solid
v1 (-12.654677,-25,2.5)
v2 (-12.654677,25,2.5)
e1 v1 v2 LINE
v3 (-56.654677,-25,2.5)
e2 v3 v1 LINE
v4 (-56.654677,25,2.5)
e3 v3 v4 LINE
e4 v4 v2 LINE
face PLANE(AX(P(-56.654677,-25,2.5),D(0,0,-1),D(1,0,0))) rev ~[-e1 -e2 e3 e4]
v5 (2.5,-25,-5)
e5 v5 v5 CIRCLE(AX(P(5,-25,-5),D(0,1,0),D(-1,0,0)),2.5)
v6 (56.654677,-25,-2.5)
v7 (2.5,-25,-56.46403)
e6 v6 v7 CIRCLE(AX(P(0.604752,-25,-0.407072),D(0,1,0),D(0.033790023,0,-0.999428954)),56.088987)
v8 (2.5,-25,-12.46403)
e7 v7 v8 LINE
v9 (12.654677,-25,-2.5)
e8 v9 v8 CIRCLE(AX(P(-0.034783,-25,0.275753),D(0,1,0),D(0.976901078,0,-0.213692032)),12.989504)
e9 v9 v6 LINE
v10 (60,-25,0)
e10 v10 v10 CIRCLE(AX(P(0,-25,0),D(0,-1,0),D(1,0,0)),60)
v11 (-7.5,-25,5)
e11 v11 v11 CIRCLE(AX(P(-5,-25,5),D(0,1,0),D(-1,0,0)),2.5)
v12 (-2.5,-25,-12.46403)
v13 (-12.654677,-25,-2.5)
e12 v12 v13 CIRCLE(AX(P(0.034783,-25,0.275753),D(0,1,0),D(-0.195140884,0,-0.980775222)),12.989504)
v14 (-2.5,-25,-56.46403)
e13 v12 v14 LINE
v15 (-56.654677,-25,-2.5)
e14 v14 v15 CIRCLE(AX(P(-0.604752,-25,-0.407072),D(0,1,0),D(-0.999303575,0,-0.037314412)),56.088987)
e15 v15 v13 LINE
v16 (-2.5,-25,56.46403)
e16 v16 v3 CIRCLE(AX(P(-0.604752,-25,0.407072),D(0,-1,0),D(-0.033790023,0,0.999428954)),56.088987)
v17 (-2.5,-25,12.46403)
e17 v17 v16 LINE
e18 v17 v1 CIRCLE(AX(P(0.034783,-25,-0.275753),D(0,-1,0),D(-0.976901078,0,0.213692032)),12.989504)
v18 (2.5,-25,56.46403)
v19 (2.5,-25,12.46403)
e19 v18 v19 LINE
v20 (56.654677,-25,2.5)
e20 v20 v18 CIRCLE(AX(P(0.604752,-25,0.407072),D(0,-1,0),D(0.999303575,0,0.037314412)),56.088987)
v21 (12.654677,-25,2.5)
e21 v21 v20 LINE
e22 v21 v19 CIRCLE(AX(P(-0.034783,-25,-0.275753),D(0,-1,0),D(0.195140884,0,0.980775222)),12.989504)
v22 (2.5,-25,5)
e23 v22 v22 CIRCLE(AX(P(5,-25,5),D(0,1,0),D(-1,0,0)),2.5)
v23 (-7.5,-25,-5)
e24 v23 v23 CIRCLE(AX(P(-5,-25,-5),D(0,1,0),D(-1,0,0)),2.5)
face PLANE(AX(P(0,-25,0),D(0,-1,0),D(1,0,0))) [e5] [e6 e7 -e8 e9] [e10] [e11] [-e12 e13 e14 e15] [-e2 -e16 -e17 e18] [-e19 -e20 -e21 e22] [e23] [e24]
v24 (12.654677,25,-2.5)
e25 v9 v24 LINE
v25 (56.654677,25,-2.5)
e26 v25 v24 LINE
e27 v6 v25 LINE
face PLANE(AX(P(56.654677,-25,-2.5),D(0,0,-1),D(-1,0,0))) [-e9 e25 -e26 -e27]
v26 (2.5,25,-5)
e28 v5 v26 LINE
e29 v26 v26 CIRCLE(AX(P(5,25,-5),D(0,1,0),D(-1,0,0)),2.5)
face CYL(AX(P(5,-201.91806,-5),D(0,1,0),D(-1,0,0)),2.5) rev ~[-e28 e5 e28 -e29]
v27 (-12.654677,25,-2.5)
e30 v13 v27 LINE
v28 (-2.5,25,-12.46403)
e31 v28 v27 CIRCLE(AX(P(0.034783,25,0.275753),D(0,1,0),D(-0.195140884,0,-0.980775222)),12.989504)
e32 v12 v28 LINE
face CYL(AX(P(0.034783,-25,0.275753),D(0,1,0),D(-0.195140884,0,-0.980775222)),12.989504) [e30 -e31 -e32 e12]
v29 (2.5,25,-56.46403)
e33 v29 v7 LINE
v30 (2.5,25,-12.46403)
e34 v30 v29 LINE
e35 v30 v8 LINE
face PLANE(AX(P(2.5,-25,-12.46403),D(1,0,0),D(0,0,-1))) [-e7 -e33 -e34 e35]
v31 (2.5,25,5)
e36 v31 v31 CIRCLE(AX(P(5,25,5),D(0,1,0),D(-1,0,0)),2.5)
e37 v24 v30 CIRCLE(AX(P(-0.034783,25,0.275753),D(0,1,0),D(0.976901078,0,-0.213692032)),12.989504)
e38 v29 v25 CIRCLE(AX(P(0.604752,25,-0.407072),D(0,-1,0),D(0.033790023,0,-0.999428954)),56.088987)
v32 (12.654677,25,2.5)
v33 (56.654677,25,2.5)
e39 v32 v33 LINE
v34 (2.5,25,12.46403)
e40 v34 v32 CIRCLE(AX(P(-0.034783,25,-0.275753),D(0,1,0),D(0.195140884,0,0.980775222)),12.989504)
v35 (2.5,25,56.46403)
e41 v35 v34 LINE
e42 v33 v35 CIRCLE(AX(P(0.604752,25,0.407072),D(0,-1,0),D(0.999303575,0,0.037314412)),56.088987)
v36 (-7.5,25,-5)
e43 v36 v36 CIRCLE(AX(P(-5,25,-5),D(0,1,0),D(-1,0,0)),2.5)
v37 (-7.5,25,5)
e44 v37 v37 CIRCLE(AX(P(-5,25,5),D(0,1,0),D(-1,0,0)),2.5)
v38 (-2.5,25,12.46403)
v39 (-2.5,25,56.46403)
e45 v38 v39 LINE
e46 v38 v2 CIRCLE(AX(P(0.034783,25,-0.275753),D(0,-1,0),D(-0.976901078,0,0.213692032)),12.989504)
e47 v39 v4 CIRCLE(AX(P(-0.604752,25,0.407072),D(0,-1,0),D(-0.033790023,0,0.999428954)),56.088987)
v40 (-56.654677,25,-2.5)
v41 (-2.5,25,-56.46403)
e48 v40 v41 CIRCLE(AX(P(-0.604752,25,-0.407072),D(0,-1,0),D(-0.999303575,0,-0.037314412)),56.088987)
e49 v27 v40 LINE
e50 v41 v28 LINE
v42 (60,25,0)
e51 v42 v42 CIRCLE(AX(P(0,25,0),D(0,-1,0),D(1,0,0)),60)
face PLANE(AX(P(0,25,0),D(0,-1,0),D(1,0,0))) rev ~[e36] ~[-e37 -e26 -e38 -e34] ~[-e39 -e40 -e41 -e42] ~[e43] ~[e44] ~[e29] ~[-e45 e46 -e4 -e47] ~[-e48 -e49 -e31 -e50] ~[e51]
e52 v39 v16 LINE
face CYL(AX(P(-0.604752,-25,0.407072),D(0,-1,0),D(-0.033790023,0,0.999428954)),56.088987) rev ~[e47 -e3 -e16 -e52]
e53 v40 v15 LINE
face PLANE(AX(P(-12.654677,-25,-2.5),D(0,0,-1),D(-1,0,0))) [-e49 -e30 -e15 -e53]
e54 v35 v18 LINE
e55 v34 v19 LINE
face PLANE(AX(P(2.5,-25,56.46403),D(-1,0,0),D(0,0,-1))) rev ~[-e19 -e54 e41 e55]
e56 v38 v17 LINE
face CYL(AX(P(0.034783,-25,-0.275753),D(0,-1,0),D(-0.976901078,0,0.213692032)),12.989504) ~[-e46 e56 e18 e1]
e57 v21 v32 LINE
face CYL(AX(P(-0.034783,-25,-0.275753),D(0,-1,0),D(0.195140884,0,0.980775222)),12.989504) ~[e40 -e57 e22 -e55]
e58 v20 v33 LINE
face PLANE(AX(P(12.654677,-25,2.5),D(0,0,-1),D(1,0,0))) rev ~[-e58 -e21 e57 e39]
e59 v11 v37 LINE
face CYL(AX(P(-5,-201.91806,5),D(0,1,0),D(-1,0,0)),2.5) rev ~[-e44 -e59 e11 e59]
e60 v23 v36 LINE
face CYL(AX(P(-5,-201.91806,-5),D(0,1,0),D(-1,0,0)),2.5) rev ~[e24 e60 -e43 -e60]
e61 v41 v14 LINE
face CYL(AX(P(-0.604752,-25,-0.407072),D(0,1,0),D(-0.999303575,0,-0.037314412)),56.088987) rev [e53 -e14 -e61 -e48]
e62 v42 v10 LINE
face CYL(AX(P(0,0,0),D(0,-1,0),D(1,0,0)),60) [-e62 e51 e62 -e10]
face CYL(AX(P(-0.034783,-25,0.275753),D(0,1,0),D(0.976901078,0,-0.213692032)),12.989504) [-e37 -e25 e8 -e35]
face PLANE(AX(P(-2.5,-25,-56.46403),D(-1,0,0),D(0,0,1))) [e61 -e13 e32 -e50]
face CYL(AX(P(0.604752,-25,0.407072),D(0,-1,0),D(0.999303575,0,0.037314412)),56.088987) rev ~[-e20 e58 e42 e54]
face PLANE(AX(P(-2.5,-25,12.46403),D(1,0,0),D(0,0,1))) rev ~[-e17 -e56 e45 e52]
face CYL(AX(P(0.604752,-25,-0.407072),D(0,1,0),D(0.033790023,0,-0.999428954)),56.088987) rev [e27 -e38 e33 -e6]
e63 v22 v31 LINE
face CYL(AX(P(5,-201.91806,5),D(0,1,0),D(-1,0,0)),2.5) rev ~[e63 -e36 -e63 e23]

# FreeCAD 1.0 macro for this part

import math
import FreeCAD as App
import Part
import Sketcher

V = App.Vector
Q = App.Units.Quantity

doc = App.newDocument("Part")
body = doc.addObject("PartDesign::Body", "Body")

sketch1 = body.newObject("Sketcher::SketchObject", "Sketch")
sketch1.AttachmentSupport = (doc.getObject("XZ_Plane"), [""])
sketch1.MapMode = "FlatFace"
sketch1.addGeometry(Part.Circle(V(0, 0, 0), V(0, 0, 1), 60), False)
sketch1.addConstraint([
    Sketcher.Constraint("Coincident", 0, 3, -1, 1),
    Sketcher.Constraint("Diameter", 0, Q("120 mm")),
])
pad1 = body.newObject("PartDesign::Pad", "Pad")
pad1.Profile = sketch1
pad1.Length = 50
pad1.Midplane = True

sketch2 = body.newObject("Sketcher::SketchObject", "Sketch001")
sketch2.AttachmentSupport = (doc.getObject("XZ_Plane"), [""])
sketch2.MapMode = "FlatFace"
sketch2.AttachmentOffset = App.Placement(V(0, 0, 25), App.Rotation())
sketch2.addGeometry([
    Part.ArcOfCircle(Part.Circle(V(0, 0, 0), V(0, 0, 1), 13), math.radians(101), math.radians(168)),
    Part.LineSegment(V(-2, 12, 0), V(-2, 56, 0)),
    Part.ArcOfCircle(Part.Circle(V(-1, 0, 0), V(0, 0, 1), 56), math.radians(92), math.radians(178)),
    Part.LineSegment(V(-57, 2, 0), V(-13, 2, 0)),
], False)
sketch2.addConstraint([
    Sketcher.Constraint("Coincident", 0, 1, 1, 1),
    Sketcher.Constraint("Coincident", 1, 2, 2, 1),
    Sketcher.Constraint("Coincident", 2, 2, 3, 1),
    Sketcher.Constraint("Coincident", 3, 2, 0, 2),
    Sketcher.Constraint("Vertical", 1),
    Sketcher.Constraint("Horizontal", 3),
    Sketcher.Constraint("Equal", 3, 1),
    Sketcher.Constraint("DistanceX", 3, 1, 3, 2, Q("44 mm")),
    Sketcher.Constraint("DistanceX", 0, 1, -1, 1, Q("2.5 mm")),
    Sketcher.Constraint("DistanceY", -1, 1, 2, 2, Q("2.5 mm")),
    Sketcher.Constraint("Radius", 0, Q("12.989504 mm")),
    Sketcher.Constraint("Radius", 2, Q("56.088987 mm")),
    Sketcher.Constraint("DistanceX", 2, 3, -1, 1, Q("0.604752 mm")),
    Sketcher.Constraint("DistanceY", -1, 1, 0, 1, Q("12.46403 mm")),
])
pocket1 = body.newObject("PartDesign::Pocket", "Pocket")
pocket1.Profile = sketch2
pocket1.Length = 101.2
pocket1.Midplane = True

sketch3 = body.newObject("Sketcher::SketchObject", "Sketch002")
sketch3.AttachmentSupport = (doc.getObject("XZ_Plane"), [""])
sketch3.MapMode = "FlatFace"
sketch3.AttachmentOffset = App.Placement(V(0, 0, 25), App.Rotation())
sketch3.addGeometry([
    Part.LineSegment(V(-12.654677, -2.5, 0), V(-56.654677, -2.5, 0)),
    Part.ArcOfCircle(Part.Circle(V(-0.604752, -0.407072, 0), V(0, 0, 1), 56.088987), math.radians(-177.861545), math.radians(-91.936394)),
    Part.LineSegment(V(-2.5, -56.46403, 0), V(-2.5, -12.46403, 0)),
    Part.ArcOfCircle(Part.Circle(V(0.034783, 0.275753, 0), V(0, 0, 1), 12.989504), math.radians(-167.661197), math.radians(-101.252954)),
    Part.ArcOfCircle(Part.Circle(V(-0.034783, 0.275753, 0), V(0, 0, 1), 12.989504), math.radians(-78.747046), math.radians(-12.338803)),
    Part.LineSegment(V(2.5, -12.46403, 0), V(2.5, -56.46403, 0)),
    Part.ArcOfCircle(Part.Circle(V(0.604752, -0.407072, 0), V(0, 0, 1), 56.088987), math.radians(-88.063606), math.radians(-2.138455)),
    Part.LineSegment(V(56.654677, -2.5, 0), V(12.654677, -2.5, 0)),
    Part.ArcOfCircle(Part.Circle(V(0.604752, 0.407072, 0), V(0, 0, 1), 56.088987), math.radians(2.138455), math.radians(88.063606)),
    Part.LineSegment(V(2.5, 56.46403, 0), V(2.5, 12.46403, 0)),
    Part.ArcOfCircle(Part.Circle(V(-0.034783, -0.275753, 0), V(0, 0, 1), 12.989504), math.radians(12.338803), math.radians(78.747046)),
    Part.LineSegment(V(12.654677, 2.5, 0), V(56.654677, 2.5, 0)),
], False)
sketch3.addConstraint([
    Sketcher.Constraint("Coincident", 0, 2, 1, 1),
    Sketcher.Constraint("Coincident", 1, 2, 2, 1),
    Sketcher.Constraint("Coincident", 2, 2, 3, 2),
    Sketcher.Constraint("Coincident", 3, 1, 0, 1),
    Sketcher.Constraint("Coincident", 4, 1, 5, 1),
    Sketcher.Constraint("Coincident", 5, 2, 6, 1),
    Sketcher.Constraint("Coincident", 6, 2, 7, 1),
    Sketcher.Constraint("Coincident", 7, 2, 4, 2),
    Sketcher.Constraint("Coincident", 8, 2, 9, 1),
    Sketcher.Constraint("Coincident", 9, 2, 10, 2),
    Sketcher.Constraint("Coincident", 10, 1, 11, 1),
    Sketcher.Constraint("Coincident", 11, 2, 8, 1),
    Sketcher.Constraint("Horizontal", 0),
    Sketcher.Constraint("Vertical", 2),
    Sketcher.Constraint("Vertical", 5),
    Sketcher.Constraint("Horizontal", 7),
    Sketcher.Constraint("Vertical", 9),
    Sketcher.Constraint("Horizontal", 11),
    Sketcher.Constraint("Equal", 3, 4),
    Sketcher.Constraint("Equal", 1, 6),
    Sketcher.Constraint("Equal", 6, 8),
    Sketcher.Constraint("Equal", 4, 10),
    Sketcher.Constraint("Symmetric", 1, 3, 8, 3, -1, 1),
    Sketcher.Constraint("Symmetric", 3, 3, 10, 3, -1, 1),
    Sketcher.Constraint("Symmetric", 3, 3, 4, 3, -2),
    Sketcher.Constraint("Symmetric", 1, 3, 6, 3, -2),
    Sketcher.Constraint("Horizontal", 2, 2, 4, 1),
    Sketcher.Constraint("Horizontal", 3, 1, 6, 2),
    Sketcher.Constraint("Vertical", 5, 2, 8, 2),
    Sketcher.Constraint("Vertical", 7, 2, 10, 1),
    Sketcher.Constraint("Equal", 11, 2),
    Sketcher.Constraint("DistanceX", 0, 2, 0, 1, Q("44 mm")),
    Sketcher.Constraint("DistanceX", 2, 2, 4, 1, Q("5 mm")),
    Sketcher.Constraint("DistanceY", 7, 2, 10, 1, Q("5 mm")),
    Sketcher.Constraint("Radius", 1, Q("56.088987 mm")),
    Sketcher.Constraint("Radius", 3, Q("12.989504 mm")),
    Sketcher.Constraint("DistanceX", 1, 3, -1, 1, Q("0.604752 mm")),
    Sketcher.Constraint("DistanceY", 1, 2, -1, 1, Q("56.46403 mm")),
])
pocket2 = body.newObject("PartDesign::Pocket", "Pocket001")
pocket2.Profile = sketch3
pocket2.Length = 100
pocket2.Midplane = True

sketch4 = body.newObject("Sketcher::SketchObject", "Sketch003")
sketch4.AttachmentSupport = (doc.getObject("XZ_Plane"), [""])
sketch4.MapMode = "FlatFace"
sketch4.AttachmentOffset = App.Placement(V(0, 0, 25), App.Rotation())
sketch4.addGeometry([
    Part.Circle(V(-5, -5, 0), V(0, 0, 1), 2.5),
    Part.Circle(V(-5, 5, 0), V(0, 0, 1), 2.5),
    Part.Circle(V(5, 5, 0), V(0, 0, 1), 2.5),
    Part.Circle(V(5, -5, 0), V(0, 0, 1), 2.5),
], False)
sketch4.addConstraint([
    Sketcher.Constraint("Equal", 0, 1),
    Sketcher.Constraint("Equal", 1, 2),
    Sketcher.Constraint("Equal", 2, 3),
    Sketcher.Constraint("Symmetric", 0, 3, 2, 3, -1, 1),
    Sketcher.Constraint("Symmetric", 1, 3, 3, 3, -1, 1),
    Sketcher.Constraint("Symmetric", 1, 3, 2, 3, -2),
    Sketcher.Constraint("Diameter", 0, Q("5 mm")),
    Sketcher.Constraint("DistanceX", 0, 3, -1, 1, Q("5 mm")),
    Sketcher.Constraint("DistanceY", 0, 3, -1, 1, Q("5 mm")),
])
doc.recompute()
hole = body.newObject("PartDesign::Hole", "Hole")
hole.Profile = sketch4
hole.ThreadType = "None"
hole.Diameter = 5
hole.DepthType = "ThroughAll"

doc.recompute()
